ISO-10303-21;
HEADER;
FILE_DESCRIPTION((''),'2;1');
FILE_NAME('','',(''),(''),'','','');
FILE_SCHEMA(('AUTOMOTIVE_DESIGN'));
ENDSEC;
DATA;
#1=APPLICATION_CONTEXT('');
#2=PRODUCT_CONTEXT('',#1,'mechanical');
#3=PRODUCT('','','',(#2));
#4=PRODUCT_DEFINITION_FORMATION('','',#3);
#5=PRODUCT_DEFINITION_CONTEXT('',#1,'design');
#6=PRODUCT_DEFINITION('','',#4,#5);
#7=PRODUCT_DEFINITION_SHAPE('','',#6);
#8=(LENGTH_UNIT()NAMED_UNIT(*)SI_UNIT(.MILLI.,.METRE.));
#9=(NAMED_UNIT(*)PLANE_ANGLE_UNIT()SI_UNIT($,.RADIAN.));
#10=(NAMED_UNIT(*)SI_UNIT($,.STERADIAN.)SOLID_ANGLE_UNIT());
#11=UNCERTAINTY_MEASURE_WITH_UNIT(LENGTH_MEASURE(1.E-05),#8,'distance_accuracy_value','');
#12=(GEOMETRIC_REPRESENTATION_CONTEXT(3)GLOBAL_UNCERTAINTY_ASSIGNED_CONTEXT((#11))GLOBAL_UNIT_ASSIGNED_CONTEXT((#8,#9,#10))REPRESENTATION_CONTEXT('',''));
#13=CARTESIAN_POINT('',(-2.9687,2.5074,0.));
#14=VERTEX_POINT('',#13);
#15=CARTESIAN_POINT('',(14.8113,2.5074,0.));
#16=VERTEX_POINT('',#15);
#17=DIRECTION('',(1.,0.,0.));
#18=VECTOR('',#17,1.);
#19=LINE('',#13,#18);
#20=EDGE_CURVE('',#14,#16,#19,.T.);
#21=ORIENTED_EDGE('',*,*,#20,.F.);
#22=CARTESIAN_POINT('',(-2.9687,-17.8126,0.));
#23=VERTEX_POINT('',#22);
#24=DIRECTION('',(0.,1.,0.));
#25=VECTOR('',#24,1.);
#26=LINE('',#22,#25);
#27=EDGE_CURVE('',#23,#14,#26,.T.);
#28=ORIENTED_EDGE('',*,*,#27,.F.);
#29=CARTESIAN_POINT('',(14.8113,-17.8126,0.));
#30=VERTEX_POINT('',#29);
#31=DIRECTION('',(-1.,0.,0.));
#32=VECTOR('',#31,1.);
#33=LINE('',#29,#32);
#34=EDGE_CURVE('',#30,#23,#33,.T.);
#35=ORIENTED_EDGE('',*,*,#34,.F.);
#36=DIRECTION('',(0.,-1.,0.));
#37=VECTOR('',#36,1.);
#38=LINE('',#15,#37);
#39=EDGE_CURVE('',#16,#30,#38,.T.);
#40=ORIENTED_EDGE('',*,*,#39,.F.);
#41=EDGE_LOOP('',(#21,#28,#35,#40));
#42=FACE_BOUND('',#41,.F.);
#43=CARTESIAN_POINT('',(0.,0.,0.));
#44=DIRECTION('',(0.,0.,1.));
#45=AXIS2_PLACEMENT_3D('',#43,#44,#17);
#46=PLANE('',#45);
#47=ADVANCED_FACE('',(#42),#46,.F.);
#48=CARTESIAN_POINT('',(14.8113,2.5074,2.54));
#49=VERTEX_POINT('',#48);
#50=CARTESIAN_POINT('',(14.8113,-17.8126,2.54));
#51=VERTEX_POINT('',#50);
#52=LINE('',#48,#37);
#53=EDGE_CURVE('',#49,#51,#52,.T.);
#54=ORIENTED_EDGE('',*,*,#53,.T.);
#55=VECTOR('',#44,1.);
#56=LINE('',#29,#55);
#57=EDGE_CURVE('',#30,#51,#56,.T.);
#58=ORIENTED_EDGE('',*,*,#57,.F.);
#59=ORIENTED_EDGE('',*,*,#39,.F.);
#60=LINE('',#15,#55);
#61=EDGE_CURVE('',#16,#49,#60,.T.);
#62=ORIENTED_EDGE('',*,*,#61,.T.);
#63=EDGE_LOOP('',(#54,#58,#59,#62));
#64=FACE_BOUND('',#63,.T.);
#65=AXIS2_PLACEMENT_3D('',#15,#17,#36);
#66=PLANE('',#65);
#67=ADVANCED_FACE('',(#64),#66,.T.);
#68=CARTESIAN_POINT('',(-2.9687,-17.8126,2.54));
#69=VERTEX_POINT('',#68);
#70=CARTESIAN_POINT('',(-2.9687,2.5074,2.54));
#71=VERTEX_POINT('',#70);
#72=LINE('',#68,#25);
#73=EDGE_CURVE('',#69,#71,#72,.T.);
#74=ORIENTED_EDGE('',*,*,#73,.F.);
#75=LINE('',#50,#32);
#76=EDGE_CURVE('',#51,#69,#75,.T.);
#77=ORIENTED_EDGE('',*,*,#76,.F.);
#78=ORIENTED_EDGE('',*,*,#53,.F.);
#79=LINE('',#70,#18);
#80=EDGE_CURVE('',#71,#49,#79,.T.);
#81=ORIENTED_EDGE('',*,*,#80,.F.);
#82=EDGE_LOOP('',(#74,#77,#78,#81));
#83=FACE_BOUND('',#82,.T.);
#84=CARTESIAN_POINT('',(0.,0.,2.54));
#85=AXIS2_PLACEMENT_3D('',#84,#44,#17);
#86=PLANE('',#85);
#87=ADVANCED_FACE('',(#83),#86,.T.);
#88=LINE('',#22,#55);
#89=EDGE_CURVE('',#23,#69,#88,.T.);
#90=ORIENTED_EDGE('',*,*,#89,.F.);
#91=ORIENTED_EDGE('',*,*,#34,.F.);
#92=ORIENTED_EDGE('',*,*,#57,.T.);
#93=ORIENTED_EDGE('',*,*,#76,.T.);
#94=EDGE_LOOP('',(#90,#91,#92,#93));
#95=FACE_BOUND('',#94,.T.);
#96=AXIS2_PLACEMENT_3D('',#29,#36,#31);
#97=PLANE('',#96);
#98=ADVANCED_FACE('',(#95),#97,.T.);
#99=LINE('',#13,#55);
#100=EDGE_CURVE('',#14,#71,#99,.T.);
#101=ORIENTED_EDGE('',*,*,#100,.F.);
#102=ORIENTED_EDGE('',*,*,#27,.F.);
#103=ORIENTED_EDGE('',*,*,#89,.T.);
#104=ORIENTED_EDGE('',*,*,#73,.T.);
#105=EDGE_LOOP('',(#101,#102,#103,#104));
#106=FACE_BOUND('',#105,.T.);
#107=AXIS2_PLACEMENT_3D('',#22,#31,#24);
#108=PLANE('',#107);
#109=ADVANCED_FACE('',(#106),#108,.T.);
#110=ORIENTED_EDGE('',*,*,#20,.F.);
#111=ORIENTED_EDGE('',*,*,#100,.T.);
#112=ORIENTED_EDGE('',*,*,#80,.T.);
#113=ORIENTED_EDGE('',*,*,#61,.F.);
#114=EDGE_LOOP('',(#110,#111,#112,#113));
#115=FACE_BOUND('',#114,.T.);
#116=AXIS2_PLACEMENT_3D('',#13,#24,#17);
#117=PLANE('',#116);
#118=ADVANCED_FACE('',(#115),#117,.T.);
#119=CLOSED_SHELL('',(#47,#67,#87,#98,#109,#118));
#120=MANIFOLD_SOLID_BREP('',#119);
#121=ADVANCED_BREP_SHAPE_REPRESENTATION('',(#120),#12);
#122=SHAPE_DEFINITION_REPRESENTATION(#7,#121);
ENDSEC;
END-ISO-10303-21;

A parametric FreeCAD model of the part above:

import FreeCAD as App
import Part
import Sketcher
from FreeCAD import Vector
Q = App.Units.Quantity


def add_polygon(sketch, points):
    """Adds a closed chain of lines whose ends are joined by coincident constraints."""
    first, n = sketch.GeometryCount, len(points)
    for a, b in zip(points, points[1:] + points[:1]):
        sketch.addGeometry(Part.LineSegment(App.Vector(*a, 0), App.Vector(*b, 0)), False)
    for i in range(n):
        sketch.addConstraint(Sketcher.Constraint("Coincident", first + i, 2, first + (i + 1) % n, 1))

doc = App.newDocument("Part")
params = doc.addObject("Spreadsheet::Sheet", "Params")
for row, (alias, value) in enumerate([
    ("sketch1_width", "0.7 in"),
    ("sketch1_height", "0.8 in"),
    ("pad1_length", "0.1 in"),
], start=1):
    params.set(f"A{row}", alias)
    params.set(f"B{row}", "=" + value)
    params.setAlias(f"B{row}", alias)

body = doc.addObject("PartDesign::Body", "Body")

# Sketch on XY plane
sketch1 = body.newObject("Sketcher::SketchObject", "Sketch")
sketch1.AttachmentSupport = (doc.getObject("XY_Plane"), [""])
sketch1.MapMode = "FlatFace"
add_polygon(sketch1, [(15, 3), (-3, 3), (-3, -18), (15, -18)])  # lines 0-3
sketch1.addConstraint([
    Sketcher.Constraint("Horizontal", 0),
    Sketcher.Constraint("Vertical", 1),
    Sketcher.Constraint("Horizontal", 2),
    Sketcher.Constraint("Vertical", 3),
    Sketcher.Constraint("DistanceX", 0, 2, 0, 1, Q("0.7 in")),
    Sketcher.Constraint("DistanceY", 1, 2, 1, 1, Q("0.8 in")),
    Sketcher.Constraint("DistanceX", 0, 2, -1, 1, 2.9687),
    Sketcher.Constraint("DistanceY", -1, 1, 0, 2, 2.5074),
])
sketch1.setExpression("Constraints[8]", "Params.sketch1_width")
sketch1.setExpression("Constraints[9]", "Params.sketch1_height")
pad1 = body.newObject("PartDesign::Pad", "Pad")
pad1.Profile = sketch1
pad1.setExpression("Length", "Params.pad1_length")

doc.recompute()
